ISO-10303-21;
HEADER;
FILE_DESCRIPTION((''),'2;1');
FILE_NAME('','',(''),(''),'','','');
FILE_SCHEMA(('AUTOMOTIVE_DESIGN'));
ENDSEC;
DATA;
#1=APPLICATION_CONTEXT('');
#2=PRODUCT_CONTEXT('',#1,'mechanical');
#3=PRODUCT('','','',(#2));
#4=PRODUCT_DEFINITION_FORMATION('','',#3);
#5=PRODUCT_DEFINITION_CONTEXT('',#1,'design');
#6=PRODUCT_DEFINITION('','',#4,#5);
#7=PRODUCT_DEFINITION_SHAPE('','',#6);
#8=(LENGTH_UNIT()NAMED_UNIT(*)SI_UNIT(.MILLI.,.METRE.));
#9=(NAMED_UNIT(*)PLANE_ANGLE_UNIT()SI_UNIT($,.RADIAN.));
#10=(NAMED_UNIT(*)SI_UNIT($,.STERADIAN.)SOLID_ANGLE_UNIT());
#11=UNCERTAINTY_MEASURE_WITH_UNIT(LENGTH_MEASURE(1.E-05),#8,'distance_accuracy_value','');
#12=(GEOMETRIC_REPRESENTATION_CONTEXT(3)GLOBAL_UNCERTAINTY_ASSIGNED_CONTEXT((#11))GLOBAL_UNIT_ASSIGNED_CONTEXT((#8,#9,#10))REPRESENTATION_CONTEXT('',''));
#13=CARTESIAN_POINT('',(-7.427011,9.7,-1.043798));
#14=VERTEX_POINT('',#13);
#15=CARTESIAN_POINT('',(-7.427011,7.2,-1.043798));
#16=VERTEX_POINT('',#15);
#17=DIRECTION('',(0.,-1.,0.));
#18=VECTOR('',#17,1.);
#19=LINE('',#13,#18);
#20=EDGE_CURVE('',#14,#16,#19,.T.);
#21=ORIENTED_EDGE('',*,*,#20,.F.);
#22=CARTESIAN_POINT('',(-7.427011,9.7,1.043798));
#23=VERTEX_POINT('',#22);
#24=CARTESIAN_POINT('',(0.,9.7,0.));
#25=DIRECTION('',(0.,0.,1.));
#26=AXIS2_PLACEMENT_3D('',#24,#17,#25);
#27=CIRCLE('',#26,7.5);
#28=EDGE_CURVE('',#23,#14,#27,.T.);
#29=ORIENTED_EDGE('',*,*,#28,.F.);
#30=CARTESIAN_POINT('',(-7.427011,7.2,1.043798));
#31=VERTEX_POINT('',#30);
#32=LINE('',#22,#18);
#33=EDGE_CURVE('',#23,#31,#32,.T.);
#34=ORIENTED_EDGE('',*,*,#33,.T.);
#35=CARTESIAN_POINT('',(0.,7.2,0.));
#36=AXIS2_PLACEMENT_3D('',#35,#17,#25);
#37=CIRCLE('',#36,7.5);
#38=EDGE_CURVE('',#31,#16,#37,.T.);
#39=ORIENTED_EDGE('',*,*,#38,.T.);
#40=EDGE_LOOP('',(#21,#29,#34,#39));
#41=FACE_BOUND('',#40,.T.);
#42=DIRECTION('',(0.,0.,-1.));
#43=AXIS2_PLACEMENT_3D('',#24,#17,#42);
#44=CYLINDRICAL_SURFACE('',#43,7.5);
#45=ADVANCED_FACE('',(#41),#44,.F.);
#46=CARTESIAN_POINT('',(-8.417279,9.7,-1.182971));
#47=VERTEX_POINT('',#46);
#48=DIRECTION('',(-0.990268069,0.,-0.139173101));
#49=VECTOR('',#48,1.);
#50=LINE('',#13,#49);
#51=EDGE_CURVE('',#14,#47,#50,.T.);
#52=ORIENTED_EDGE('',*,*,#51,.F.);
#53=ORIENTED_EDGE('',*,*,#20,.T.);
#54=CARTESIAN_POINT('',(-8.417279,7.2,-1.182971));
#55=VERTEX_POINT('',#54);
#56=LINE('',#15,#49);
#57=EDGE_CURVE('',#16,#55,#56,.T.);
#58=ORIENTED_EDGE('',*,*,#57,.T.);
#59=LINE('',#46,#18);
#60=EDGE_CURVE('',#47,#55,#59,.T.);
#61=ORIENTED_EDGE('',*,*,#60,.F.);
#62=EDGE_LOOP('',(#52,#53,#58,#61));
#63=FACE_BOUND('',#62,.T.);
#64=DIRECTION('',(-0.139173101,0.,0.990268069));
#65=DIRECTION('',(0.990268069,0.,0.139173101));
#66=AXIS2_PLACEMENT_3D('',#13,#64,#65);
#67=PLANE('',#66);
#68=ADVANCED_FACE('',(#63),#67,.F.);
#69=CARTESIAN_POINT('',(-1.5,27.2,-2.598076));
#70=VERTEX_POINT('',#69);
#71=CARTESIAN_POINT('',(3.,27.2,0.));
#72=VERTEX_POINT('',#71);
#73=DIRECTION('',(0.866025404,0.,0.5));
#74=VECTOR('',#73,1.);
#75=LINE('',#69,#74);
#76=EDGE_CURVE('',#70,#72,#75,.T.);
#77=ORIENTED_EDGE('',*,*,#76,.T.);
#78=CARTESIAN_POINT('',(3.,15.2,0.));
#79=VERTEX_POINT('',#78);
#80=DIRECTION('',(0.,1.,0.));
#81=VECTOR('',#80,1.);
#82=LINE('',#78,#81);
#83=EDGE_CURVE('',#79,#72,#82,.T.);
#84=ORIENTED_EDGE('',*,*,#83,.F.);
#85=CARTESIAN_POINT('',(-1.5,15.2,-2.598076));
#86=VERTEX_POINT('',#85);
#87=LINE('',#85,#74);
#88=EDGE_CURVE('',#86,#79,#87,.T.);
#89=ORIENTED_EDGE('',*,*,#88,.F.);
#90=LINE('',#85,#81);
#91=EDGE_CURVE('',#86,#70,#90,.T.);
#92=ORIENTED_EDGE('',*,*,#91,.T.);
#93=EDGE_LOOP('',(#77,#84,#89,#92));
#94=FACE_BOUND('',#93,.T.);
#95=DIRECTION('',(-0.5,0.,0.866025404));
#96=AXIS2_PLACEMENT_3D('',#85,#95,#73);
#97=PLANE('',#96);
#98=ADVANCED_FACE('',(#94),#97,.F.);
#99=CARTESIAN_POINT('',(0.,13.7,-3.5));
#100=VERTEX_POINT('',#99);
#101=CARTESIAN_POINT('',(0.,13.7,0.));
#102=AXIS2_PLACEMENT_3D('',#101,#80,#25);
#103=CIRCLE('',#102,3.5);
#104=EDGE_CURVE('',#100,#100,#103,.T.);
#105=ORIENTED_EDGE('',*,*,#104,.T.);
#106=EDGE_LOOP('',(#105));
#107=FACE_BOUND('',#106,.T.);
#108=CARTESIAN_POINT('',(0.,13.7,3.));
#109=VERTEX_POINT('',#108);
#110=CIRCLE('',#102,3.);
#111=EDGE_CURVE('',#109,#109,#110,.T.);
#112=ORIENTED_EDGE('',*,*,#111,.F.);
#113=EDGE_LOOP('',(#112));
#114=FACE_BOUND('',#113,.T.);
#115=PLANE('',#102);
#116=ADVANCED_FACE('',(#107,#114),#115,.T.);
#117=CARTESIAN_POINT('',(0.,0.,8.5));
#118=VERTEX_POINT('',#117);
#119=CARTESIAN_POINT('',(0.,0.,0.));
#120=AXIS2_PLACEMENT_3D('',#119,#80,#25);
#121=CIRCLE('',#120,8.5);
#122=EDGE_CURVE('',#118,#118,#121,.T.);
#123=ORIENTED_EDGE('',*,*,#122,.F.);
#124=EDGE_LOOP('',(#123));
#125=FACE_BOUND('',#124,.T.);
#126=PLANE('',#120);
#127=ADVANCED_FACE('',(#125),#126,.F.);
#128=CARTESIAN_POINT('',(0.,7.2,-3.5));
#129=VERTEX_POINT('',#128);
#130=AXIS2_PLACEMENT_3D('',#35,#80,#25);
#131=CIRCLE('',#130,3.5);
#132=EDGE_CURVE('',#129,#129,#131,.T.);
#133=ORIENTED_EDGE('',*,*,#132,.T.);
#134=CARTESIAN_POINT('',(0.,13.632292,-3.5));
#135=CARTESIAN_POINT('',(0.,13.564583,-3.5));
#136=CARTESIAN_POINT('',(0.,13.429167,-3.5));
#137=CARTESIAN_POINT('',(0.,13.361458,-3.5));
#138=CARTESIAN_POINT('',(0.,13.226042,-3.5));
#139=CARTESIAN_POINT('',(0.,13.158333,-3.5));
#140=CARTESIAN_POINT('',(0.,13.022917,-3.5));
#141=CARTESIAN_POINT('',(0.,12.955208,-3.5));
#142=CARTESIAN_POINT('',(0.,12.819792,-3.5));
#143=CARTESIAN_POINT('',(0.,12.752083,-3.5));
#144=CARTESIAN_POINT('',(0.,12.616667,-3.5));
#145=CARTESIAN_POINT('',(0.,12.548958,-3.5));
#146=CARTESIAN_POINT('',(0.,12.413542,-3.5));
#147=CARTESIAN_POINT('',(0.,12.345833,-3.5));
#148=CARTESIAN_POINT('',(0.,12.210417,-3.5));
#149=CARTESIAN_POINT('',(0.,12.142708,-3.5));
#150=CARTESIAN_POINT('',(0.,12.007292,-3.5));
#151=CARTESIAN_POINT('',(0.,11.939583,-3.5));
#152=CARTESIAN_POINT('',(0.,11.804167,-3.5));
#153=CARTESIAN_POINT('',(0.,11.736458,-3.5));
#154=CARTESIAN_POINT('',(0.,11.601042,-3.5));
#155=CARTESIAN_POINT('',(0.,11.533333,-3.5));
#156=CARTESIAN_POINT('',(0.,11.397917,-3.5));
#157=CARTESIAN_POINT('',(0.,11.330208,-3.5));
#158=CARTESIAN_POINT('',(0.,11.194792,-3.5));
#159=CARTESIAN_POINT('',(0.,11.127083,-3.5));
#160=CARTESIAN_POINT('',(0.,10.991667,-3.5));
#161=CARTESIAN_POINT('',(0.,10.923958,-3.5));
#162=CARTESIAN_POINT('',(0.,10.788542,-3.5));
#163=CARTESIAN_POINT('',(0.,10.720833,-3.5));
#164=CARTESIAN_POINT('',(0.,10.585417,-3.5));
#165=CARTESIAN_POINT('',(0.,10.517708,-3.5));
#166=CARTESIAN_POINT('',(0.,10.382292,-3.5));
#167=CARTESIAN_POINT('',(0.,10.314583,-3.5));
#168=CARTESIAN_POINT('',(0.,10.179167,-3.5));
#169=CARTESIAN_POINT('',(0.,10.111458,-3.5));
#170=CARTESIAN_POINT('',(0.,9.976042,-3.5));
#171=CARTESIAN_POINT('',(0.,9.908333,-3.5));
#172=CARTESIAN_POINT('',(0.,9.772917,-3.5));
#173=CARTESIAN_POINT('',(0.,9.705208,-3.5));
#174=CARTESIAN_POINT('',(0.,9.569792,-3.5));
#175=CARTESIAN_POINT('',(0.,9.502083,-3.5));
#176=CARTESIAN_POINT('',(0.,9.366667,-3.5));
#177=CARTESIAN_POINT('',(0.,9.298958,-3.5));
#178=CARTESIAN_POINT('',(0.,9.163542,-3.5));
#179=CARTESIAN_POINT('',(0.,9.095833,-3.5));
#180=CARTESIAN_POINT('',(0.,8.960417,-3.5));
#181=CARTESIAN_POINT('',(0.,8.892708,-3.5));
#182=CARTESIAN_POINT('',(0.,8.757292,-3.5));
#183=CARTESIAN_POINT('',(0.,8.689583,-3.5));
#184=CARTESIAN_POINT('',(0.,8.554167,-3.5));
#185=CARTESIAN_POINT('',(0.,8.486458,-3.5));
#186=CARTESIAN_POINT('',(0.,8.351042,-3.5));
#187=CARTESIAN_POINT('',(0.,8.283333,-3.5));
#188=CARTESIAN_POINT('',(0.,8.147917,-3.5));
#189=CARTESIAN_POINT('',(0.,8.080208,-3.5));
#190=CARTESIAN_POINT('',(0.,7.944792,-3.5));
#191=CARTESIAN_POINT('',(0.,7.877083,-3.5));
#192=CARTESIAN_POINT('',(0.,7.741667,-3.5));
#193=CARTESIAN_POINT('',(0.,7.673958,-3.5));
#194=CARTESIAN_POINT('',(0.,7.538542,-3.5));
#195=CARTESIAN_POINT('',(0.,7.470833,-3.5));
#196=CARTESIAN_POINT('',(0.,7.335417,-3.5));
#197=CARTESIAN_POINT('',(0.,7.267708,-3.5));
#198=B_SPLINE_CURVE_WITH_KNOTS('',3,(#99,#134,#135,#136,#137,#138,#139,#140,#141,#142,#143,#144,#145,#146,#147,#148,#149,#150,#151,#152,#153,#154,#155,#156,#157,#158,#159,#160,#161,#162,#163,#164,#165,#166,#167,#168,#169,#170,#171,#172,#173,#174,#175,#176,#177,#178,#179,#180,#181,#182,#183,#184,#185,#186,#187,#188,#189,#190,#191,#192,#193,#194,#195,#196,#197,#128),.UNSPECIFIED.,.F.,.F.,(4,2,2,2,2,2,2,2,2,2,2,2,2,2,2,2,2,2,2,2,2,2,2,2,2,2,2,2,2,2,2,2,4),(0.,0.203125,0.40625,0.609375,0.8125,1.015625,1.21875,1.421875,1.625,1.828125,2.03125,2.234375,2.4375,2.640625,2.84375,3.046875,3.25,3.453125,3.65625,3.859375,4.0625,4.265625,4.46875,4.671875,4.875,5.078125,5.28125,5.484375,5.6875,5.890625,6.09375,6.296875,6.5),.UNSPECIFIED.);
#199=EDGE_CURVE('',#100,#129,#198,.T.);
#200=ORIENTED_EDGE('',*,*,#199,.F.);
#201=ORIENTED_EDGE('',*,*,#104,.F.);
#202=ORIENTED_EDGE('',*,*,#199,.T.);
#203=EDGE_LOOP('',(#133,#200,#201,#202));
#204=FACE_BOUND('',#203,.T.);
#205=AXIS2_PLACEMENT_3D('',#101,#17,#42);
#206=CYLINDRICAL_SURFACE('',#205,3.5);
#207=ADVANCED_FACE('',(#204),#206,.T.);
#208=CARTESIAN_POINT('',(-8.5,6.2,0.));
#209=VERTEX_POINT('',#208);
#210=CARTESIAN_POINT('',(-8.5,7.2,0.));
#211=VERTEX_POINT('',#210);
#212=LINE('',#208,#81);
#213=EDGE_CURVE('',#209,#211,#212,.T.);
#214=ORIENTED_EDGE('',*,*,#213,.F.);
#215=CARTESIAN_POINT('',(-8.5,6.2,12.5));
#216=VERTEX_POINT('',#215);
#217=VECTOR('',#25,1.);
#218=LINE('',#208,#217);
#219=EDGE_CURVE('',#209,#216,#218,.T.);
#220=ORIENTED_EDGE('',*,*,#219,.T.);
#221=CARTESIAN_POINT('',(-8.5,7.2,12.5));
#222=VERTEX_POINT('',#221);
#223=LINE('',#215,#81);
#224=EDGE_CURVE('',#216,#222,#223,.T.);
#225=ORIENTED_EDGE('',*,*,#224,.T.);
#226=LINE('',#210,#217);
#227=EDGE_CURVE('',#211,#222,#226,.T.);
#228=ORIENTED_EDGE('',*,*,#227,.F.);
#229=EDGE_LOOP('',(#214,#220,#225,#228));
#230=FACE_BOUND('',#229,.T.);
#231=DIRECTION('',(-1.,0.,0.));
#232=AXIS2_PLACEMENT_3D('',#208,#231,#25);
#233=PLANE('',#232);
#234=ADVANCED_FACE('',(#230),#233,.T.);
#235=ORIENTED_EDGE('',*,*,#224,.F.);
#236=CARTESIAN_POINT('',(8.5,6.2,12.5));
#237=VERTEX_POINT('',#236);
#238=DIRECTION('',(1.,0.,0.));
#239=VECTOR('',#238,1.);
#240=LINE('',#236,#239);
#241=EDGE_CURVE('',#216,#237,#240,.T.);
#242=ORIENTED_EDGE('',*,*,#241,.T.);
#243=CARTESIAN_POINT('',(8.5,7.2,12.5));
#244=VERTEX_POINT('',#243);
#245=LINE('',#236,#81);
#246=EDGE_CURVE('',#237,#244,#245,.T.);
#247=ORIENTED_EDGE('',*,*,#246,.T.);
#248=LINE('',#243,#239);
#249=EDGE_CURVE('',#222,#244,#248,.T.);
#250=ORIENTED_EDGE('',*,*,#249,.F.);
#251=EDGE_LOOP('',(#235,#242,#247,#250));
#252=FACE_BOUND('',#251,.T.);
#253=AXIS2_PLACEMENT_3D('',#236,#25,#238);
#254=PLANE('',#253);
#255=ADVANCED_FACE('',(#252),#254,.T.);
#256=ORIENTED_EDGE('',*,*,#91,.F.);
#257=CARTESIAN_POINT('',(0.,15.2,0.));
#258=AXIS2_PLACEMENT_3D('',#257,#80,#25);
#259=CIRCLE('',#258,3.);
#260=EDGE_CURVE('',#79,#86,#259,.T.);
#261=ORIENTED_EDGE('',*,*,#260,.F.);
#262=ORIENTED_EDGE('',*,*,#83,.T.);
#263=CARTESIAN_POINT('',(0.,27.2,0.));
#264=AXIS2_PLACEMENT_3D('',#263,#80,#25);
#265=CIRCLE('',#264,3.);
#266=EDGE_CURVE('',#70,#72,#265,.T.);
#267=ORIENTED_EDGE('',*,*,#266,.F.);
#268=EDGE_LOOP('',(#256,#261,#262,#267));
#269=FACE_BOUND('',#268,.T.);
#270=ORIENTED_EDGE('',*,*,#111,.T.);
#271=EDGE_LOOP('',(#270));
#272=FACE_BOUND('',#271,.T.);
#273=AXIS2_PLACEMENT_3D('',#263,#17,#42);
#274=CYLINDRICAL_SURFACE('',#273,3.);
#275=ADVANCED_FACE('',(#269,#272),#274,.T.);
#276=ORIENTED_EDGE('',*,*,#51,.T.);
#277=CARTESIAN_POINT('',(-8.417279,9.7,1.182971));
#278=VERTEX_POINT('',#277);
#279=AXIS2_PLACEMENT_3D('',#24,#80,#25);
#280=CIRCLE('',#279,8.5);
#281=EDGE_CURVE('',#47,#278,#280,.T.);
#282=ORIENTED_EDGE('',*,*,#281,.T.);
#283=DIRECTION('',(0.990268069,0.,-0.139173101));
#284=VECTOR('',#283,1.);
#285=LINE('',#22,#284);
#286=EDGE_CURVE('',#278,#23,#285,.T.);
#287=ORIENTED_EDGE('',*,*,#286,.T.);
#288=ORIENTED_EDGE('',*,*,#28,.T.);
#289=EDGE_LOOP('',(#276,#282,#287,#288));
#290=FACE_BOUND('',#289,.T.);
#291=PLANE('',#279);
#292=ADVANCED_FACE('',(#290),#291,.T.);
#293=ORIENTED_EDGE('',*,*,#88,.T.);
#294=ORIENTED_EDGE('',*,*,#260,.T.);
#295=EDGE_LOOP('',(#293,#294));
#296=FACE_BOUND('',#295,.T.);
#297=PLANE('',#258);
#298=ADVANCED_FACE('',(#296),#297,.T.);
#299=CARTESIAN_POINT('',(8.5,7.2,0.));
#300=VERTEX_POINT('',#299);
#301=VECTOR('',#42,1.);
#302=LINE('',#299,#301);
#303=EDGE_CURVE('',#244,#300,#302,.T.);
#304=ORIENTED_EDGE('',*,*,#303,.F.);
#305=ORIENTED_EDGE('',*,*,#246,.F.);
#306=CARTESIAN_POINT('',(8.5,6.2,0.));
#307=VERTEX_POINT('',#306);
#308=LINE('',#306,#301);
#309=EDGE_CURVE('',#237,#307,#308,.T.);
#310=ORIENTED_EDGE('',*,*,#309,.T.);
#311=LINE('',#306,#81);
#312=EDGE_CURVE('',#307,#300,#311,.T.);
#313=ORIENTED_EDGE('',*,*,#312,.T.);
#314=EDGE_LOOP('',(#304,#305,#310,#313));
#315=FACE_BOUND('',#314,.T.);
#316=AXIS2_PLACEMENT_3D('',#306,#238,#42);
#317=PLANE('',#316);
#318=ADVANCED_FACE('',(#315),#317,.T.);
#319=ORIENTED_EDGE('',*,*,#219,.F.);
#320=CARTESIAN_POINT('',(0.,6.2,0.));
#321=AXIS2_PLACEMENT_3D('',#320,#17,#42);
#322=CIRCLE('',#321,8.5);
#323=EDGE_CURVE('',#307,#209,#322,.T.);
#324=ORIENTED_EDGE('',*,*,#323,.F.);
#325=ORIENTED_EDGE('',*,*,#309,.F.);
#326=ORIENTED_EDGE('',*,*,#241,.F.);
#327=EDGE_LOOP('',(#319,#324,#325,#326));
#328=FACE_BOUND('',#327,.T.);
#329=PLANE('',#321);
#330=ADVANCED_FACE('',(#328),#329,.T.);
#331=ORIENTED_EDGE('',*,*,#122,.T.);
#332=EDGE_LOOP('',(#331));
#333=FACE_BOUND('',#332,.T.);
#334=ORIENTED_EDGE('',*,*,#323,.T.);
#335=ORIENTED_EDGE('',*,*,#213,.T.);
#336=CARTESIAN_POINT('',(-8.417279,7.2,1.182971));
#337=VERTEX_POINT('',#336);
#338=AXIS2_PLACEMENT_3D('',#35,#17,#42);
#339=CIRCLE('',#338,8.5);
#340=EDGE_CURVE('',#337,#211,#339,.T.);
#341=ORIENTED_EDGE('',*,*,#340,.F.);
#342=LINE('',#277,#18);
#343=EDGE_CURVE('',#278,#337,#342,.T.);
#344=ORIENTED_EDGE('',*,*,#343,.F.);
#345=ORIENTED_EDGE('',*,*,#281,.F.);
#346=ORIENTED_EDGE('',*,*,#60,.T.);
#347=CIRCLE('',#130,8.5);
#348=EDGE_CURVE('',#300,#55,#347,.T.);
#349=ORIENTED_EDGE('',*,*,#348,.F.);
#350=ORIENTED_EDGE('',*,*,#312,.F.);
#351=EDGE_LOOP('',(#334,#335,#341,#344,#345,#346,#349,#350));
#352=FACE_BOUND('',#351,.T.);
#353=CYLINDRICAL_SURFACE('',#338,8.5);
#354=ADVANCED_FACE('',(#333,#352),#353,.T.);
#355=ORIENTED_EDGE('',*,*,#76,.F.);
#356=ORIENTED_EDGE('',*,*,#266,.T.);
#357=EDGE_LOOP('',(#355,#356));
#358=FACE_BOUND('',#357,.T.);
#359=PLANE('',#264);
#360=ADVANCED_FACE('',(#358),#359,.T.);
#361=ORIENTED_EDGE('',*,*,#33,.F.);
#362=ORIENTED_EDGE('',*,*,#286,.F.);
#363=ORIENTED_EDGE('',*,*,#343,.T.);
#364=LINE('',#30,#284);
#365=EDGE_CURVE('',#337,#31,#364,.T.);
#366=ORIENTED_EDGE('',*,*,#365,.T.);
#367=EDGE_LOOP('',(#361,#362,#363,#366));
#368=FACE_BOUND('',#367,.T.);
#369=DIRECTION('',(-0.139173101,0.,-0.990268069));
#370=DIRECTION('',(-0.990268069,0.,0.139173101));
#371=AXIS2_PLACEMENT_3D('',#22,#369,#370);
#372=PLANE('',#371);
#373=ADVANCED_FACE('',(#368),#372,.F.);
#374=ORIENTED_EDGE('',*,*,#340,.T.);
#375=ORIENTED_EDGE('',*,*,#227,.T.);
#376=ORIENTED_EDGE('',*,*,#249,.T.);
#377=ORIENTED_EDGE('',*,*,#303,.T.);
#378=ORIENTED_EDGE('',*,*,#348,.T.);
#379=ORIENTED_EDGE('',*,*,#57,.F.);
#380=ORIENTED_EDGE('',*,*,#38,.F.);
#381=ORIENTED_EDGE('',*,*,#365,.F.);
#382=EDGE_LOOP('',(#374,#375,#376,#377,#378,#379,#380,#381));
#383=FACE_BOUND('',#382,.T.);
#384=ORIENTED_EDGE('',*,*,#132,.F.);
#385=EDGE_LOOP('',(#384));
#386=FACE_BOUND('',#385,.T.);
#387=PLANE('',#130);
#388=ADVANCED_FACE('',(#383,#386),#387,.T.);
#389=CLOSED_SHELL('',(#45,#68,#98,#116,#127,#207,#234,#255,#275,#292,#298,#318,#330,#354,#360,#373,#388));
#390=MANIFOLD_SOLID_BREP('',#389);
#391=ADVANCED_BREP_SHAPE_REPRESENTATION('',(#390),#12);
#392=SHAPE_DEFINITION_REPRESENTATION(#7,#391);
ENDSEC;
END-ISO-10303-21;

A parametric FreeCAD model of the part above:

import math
import FreeCAD as App
import Part
import Sketcher
from FreeCAD import Vector
Q = App.Units.Quantity


def add_polygon(sketch, points):
    """Adds a closed chain of lines whose ends are joined by coincident constraints."""
    first, n = sketch.GeometryCount, len(points)
    for a, b in zip(points, points[1:] + points[:1]):
        sketch.addGeometry(Part.LineSegment(App.Vector(*a, 0), App.Vector(*b, 0)), False)
    for i in range(n):
        sketch.addConstraint(Sketcher.Constraint("Coincident", first + i, 2, first + (i + 1) % n, 1))

doc = App.newDocument("Part")
body = doc.addObject("PartDesign::Body", "Body")

sketch1 = body.newObject("Sketcher::SketchObject", "Sketch")
sketch1.AttachmentSupport = (doc.getObject("XZ_Plane"), [""])
sketch1.MapMode = "FlatFace"
sketch1.addGeometry(Part.Circle(Vector(0, 0, 0), Vector(0, 0, 1), 8), False)
sketch1.addConstraint([
    Sketcher.Constraint("Coincident", 0, 3, -1, 1),
    Sketcher.Constraint("Diameter", 0, Q("17 mm")),
])
pad1 = body.newObject("PartDesign::Pad", "Pad")
pad1.Profile = sketch1
pad1.Length = 7.2
pad1.Reversed = True

sketch2 = body.newObject("Sketcher::SketchObject", "Sketch001")
sketch2.AttachmentSupport = (doc.getObject("XZ_Plane"), [""])
sketch2.MapMode = "FlatFace"
sketch2.AttachmentOffset = App.Placement(Vector(0, 0, -7.2), App.Rotation())
sketch2.addGeometry([
    Part.LineSegment(Vector(-7.4, -1, 0), Vector(-8.4, -1.2, 0)),
    Part.ArcOfCircle(Part.Circle(Vector(0, 0, 0), Vector(0, 0, 1), 8.5), math.radians(172), math.radians(188)),
    Part.LineSegment(Vector(-8.4, 1.2, 0), Vector(-7.4, 1, 0)),
    Part.ArcOfCircle(Part.Circle(Vector(0, 0, 0), Vector(0, 0, 1), 7.5), math.radians(172), math.radians(188)),
], False)
sketch2.addConstraint([
    Sketcher.Constraint("Coincident", 0, 2, 1, 2),
    Sketcher.Constraint("Coincident", 1, 1, 2, 1),
    Sketcher.Constraint("Coincident", 2, 2, 3, 1),
    Sketcher.Constraint("Coincident", 3, 2, 0, 1),
    Sketcher.Constraint("Coincident", 1, 3, -1, 1),
    Sketcher.Constraint("Coincident", 3, 3, -1, 1),
    Sketcher.Constraint("Vertical", 0, 2, 1, 1),
    Sketcher.Constraint("Vertical", 2, 2, 3, 2),
    Sketcher.Constraint("Radius", 1, Q("8.5 mm")),
    Sketcher.Constraint("Radius", 3, Q("7.5 mm")),
    Sketcher.Constraint("Angle", 0, Q("-172 deg")),
    Sketcher.Constraint("DistanceY", -1, 1, 2, 2, Q("1.043798 mm")),
])
pad2 = body.newObject("PartDesign::Pad", "Pad001")
pad2.Profile = sketch2
pad2.Length = 2.5
pad2.Reversed = True

sketch3 = body.newObject("Sketcher::SketchObject", "Sketch002")
sketch3.AttachmentSupport = (doc.getObject("XZ_Plane"), [""])
sketch3.MapMode = "FlatFace"
sketch3.AttachmentOffset = App.Placement(Vector(0, 0, -7.2), App.Rotation())
sketch3.addGeometry(Part.Circle(Vector(0, 0, 0), Vector(0, 0, 1), 3.5), False)
sketch3.addConstraint([
    Sketcher.Constraint("Coincident", 0, 3, -1, 1),
    Sketcher.Constraint("Diameter", 0, Q("7 mm")),
])
pad3 = body.newObject("PartDesign::Pad", "Pad002")
pad3.Profile = sketch3
pad3.Length = 6.5
pad3.Reversed = True

sketch4 = body.newObject("Sketcher::SketchObject", "Sketch003")
sketch4.AttachmentSupport = (doc.getObject("XZ_Plane"), [""])
sketch4.MapMode = "FlatFace"
sketch4.AttachmentOffset = App.Placement(Vector(0, 0, -13.7), App.Rotation())
sketch4.addGeometry(Part.Circle(Vector(0, 0, 0), Vector(0, 0, 1), 3), False)
sketch4.addConstraint([
    Sketcher.Constraint("Coincident", 0, 3, -1, 1),
    Sketcher.Constraint("Diameter", 0, Q("6 mm")),
])
pad4 = body.newObject("PartDesign::Pad", "Pad003")
pad4.Profile = sketch4
pad4.Length = 13.5
pad4.Reversed = True

sketch5 = body.newObject("Sketcher::SketchObject", "Sketch004")
sketch5.AttachmentSupport = (doc.getObject("XZ_Plane"), [""])
sketch5.MapMode = "FlatFace"
sketch5.AttachmentOffset = App.Placement(Vector(0, 0, -15.2), App.Rotation())
sketch5.addGeometry([
    Part.LineSegment(Vector(-1.5, -2.6, 0), Vector(3, 0, 0)),
    Part.ArcOfCircle(Part.Circle(Vector(0, 0, 0), Vector(0, 0, 1), 3), math.radians(-120), math.radians(0)),
], False)
sketch5.addConstraint([
    Sketcher.Constraint("Coincident", 0, 1, 1, 1),
    Sketcher.Constraint("Coincident", 1, 2, 0, 2),
    Sketcher.Constraint("Coincident", 1, 3, -1, 1),
    Sketcher.Constraint("PointOnObject", 1, 2, -1),
    Sketcher.Constraint("Radius", 1, Q("3 mm")),
    Sketcher.Constraint("Angle", 0, Q("30 deg")),
])
pocket1 = body.newObject("PartDesign::Pocket", "Pocket")
pocket1.Profile = sketch5
pocket1.Length = 12

sketch6 = body.newObject("Sketcher::SketchObject", "Sketch005")
sketch6.AttachmentSupport = (doc.getObject("XZ_Plane"), [""])
sketch6.MapMode = "FlatFace"
sketch6.AttachmentOffset = App.Placement(Vector(0, 0, -7.2), App.Rotation())
add_polygon(sketch6, [(-8, 0), (-8, 12), (8, 12), (8, 0)])
sketch6.addConstraint([
    Sketcher.Constraint("Vertical", 0),
    Sketcher.Constraint("Horizontal", 1),
    Sketcher.Constraint("Vertical", 2),
    Sketcher.Constraint("Horizontal", 3),
    Sketcher.Constraint("Symmetric", 2, 2, 3, 2, -1, 1),
    Sketcher.Constraint("DistanceX", 1, 1, 1, 2, Q("17 mm")),
    Sketcher.Constraint("DistanceY", 0, 1, 0, 2, Q("12.5 mm")),
])
pad5 = body.newObject("PartDesign::Pad", "Pad004")
pad5.Profile = sketch6
pad5.Length = 1

doc.recompute()
